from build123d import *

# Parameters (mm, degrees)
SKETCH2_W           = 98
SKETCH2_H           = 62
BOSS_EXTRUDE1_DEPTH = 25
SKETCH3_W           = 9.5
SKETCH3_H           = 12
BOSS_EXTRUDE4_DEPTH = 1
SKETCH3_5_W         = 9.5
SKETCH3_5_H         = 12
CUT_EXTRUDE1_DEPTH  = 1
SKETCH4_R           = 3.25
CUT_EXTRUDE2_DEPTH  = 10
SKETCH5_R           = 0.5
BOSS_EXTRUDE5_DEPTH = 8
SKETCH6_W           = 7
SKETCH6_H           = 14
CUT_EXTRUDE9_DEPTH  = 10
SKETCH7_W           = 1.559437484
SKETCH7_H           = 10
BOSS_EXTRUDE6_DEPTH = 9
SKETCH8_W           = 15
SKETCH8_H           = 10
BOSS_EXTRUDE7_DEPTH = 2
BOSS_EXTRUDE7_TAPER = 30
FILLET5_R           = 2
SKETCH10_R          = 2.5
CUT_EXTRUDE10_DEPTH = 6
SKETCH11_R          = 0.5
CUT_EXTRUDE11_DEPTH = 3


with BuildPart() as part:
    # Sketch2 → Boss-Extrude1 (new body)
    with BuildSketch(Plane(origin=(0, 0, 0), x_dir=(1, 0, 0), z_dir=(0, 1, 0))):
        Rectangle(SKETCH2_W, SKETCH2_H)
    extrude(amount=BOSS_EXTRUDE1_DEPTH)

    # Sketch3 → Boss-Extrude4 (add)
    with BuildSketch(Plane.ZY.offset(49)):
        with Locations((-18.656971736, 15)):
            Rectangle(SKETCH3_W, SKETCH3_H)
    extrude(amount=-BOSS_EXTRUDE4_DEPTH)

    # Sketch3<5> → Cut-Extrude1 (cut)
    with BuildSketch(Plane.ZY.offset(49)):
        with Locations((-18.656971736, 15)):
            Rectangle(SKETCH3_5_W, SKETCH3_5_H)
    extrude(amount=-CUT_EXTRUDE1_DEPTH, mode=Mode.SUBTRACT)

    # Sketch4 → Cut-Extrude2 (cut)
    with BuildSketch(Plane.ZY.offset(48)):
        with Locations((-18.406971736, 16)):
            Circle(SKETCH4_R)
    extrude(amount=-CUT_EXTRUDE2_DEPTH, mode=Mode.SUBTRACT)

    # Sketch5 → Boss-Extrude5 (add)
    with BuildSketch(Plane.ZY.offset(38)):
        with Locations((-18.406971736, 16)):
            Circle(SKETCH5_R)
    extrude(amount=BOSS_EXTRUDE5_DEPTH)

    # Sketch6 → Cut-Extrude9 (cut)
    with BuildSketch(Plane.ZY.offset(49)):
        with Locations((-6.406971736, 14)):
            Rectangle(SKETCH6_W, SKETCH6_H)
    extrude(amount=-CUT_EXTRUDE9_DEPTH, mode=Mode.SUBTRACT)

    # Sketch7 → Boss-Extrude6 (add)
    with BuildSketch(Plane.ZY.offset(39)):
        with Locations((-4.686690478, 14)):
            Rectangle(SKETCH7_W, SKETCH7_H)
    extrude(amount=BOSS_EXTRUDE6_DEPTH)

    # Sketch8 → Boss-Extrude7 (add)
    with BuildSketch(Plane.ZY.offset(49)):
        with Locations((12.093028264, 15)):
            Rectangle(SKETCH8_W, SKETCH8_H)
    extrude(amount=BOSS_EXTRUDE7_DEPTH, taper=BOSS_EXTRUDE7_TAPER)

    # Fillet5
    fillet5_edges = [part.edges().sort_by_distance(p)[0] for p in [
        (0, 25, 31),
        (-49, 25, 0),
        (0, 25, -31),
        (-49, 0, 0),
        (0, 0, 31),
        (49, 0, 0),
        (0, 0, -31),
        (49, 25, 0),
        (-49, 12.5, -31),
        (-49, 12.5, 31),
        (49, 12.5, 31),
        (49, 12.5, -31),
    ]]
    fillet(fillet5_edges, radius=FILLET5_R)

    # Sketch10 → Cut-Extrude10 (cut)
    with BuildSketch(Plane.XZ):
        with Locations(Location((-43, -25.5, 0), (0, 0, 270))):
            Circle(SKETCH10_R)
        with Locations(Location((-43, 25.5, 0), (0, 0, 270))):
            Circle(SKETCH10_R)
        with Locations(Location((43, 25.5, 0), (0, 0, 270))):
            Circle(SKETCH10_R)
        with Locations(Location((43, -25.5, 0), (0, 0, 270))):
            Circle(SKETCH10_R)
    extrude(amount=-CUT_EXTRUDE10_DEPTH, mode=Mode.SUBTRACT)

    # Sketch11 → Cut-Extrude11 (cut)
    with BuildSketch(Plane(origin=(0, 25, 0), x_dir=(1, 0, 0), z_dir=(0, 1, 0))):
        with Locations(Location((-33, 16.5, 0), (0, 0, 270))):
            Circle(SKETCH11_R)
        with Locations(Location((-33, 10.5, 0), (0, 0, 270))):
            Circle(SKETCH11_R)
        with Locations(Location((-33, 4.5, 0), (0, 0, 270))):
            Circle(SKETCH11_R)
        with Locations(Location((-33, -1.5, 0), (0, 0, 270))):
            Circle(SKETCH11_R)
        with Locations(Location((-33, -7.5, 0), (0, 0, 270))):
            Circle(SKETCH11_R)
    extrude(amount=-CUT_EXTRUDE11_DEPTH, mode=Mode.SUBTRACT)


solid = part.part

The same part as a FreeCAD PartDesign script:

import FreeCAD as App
import Part
import Sketcher
from FreeCAD import Vector


def edges_at(feature, points):
    """Names of the edges that pass closest to the given points."""
    edges = feature.Shape.Edges
    near = lambda p: min(range(len(edges)), key=lambda i: edges[i].distToShape(Part.Vertex(*p))[0])
    return sorted({f"Edge{near(p) + 1}" for p in points})


def add_polygon(sketch, points):
    """Adds a closed chain of lines whose ends are joined by coincident constraints."""
    first, n = sketch.GeometryCount, len(points)
    for a, b in zip(points, points[1:] + points[:1]):
        sketch.addGeometry(Part.LineSegment(App.Vector(*a, 0), App.Vector(*b, 0)), False)
    for i in range(n):
        sketch.addConstraint(Sketcher.Constraint("Coincident", first + i, 2, first + (i + 1) % n, 1))

doc = App.newDocument("Part")
body = doc.addObject("PartDesign::Body", "Body")

# Sketch on XZ plane
sketch1 = doc.addObject("Sketcher::SketchObject", "Sketch")
body.addObject(sketch1)
sketch1.AttachmentSupport = (doc.XZ_Plane, [""])
sketch1.MapMode = "FlatFace"
add_polygon(sketch1, [(-49, -31), (-49, 31), (49, 31), (49, -31)])  # lines 0-3
sketch1.addConstraint([
    Sketcher.Constraint("Vertical", 0),
    Sketcher.Constraint("Horizontal", 1),
    Sketcher.Constraint("Vertical", 2),
    Sketcher.Constraint("Horizontal", 3),
    Sketcher.Constraint("Symmetric", 0, 2, 2, 2, -1, 1),
    Sketcher.Constraint("DistanceX", 1, 1, 1, 2, 98.0),
    Sketcher.Constraint("DistanceY", 0, 1, 0, 2, 62.0),
])
pad1 = doc.addObject("PartDesign::Pad", "Pad")
body.addObject(pad1)
pad1.Profile = sketch1
pad1.Length = 25
pad1.Reversed = True

# Sketch on YZ plane
sketch2 = doc.addObject("Sketcher::SketchObject", "Sketch001")
body.addObject(sketch2)
sketch2.AttachmentSupport = (doc.YZ_Plane, [""])
sketch2.MapMode = "FlatFace"
sketch2.AttachmentOffset = App.Placement(Vector(0, 0, -49), App.Rotation())
add_polygon(sketch2, [(21, -23), (9, -23), (9, -14), (21, -14)])  # lines 0-3
sketch2.addConstraint([
    Sketcher.Constraint("Horizontal", 0),
    Sketcher.Constraint("Vertical", 1),
    Sketcher.Constraint("Horizontal", 2),
    Sketcher.Constraint("Vertical", 3),
    Sketcher.Constraint("DistanceX", 0, 2, 0, 1, 12.0),
    Sketcher.Constraint("DistanceY", 1, 1, 1, 2, 9.5),
    Sketcher.Constraint("DistanceX", -1, 1, 0, 2, 9.0),
    Sketcher.Constraint("DistanceY", 0, 2, -1, 1, 23.406972),
])
pad2 = doc.addObject("PartDesign::Pad", "Pad001")
body.addObject(pad2)
pad2.Profile = sketch2
pad2.Length = 1

# Sketch on YZ plane
sketch3 = doc.addObject("Sketcher::SketchObject", "Sketch002")
body.addObject(sketch3)
sketch3.AttachmentSupport = (doc.YZ_Plane, [""])
sketch3.MapMode = "FlatFace"
sketch3.AttachmentOffset = App.Placement(Vector(0, 0, -49), App.Rotation())
add_polygon(sketch3, [(21, -23), (9, -23), (9, -14), (21, -14)])  # lines 0-3
sketch3.addConstraint([
    Sketcher.Constraint("Horizontal", 0),
    Sketcher.Constraint("Vertical", 1),
    Sketcher.Constraint("Horizontal", 2),
    Sketcher.Constraint("Vertical", 3),
    Sketcher.Constraint("DistanceX", 0, 2, 0, 1, 12.0),
    Sketcher.Constraint("DistanceY", 1, 1, 1, 2, 9.5),
    Sketcher.Constraint("DistanceX", -1, 1, 0, 2, 9.0),
    Sketcher.Constraint("DistanceY", 0, 2, -1, 1, 23.406972),
])
pocket1 = doc.addObject("PartDesign::Pocket", "Pocket")
body.addObject(pocket1)
pocket1.Profile = sketch3
pocket1.Length = 1
pocket1.Reversed = True

# Sketch on YZ plane
sketch4 = doc.addObject("Sketcher::SketchObject", "Sketch003")
body.addObject(sketch4)
sketch4.AttachmentSupport = (doc.YZ_Plane, [""])
sketch4.MapMode = "FlatFace"
sketch4.AttachmentOffset = App.Placement(Vector(0, 0, -48), App.Rotation())
sketch4.addGeometry(Part.Circle(Vector(16, -18.4, 0), Vector(0, 0, 1), 3.2), False)
sketch4.addConstraint([
    Sketcher.Constraint("Diameter", 0, 6.5),
    Sketcher.Constraint("DistanceX", -1, 1, 0, 3, 16.0),
    Sketcher.Constraint("DistanceY", 0, 3, -1, 1, 18.406972),
])
pocket2 = doc.addObject("PartDesign::Pocket", "Pocket001")
body.addObject(pocket2)
pocket2.Profile = sketch4
pocket2.Length = 10
pocket2.Reversed = True

# Sketch on YZ plane
sketch5 = doc.addObject("Sketcher::SketchObject", "Sketch004")
body.addObject(sketch5)
sketch5.AttachmentSupport = (doc.YZ_Plane, [""])
sketch5.MapMode = "FlatFace"
sketch5.AttachmentOffset = App.Placement(Vector(0, 0, -38), App.Rotation())
sketch5.addGeometry(Part.Circle(Vector(16, -18.4, 0), Vector(0, 0, 1), 0.5), False)
sketch5.addConstraint([
    Sketcher.Constraint("Diameter", 0, 1.0),
    Sketcher.Constraint("DistanceX", -1, 1, 0, 3, 16.0),
    Sketcher.Constraint("DistanceY", 0, 3, -1, 1, 18.406972),
])
pad3 = doc.addObject("PartDesign::Pad", "Pad002")
body.addObject(pad3)
pad3.Profile = sketch5
pad3.Length = 8
pad3.Reversed = True

# Sketch on YZ plane
sketch6 = doc.addObject("Sketcher::SketchObject", "Sketch005")
body.addObject(sketch6)
sketch6.AttachmentSupport = (doc.YZ_Plane, [""])
sketch6.MapMode = "FlatFace"
sketch6.AttachmentOffset = App.Placement(Vector(0, 0, -49), App.Rotation())
add_polygon(sketch6, [(21, -10), (7, -10), (7, -3), (21, -3)])  # lines 0-3
sketch6.addConstraint([
    Sketcher.Constraint("Horizontal", 0),
    Sketcher.Constraint("Vertical", 1),
    Sketcher.Constraint("Horizontal", 2),
    Sketcher.Constraint("Vertical", 3),
    Sketcher.Constraint("DistanceX", 0, 2, 0, 1, 14.0),
    Sketcher.Constraint("DistanceY", 1, 1, 1, 2, 7.0),
    Sketcher.Constraint("DistanceX", -1, 1, 0, 2, 7.0),
    Sketcher.Constraint("DistanceY", 0, 2, -1, 1, 9.906972),
])
pocket3 = doc.addObject("PartDesign::Pocket", "Pocket002")
body.addObject(pocket3)
pocket3.Profile = sketch6
pocket3.Length = 10
pocket3.Reversed = True

# Sketch on YZ plane
sketch7 = doc.addObject("Sketcher::SketchObject", "Sketch006")
body.addObject(sketch7)
sketch7.AttachmentSupport = (doc.YZ_Plane, [""])
sketch7.MapMode = "FlatFace"
sketch7.AttachmentOffset = App.Placement(Vector(0, 0, -39), App.Rotation())
add_polygon(sketch7, [(19, -5.5), (9, -5.5), (9, -3.9), (19, -3.9)])  # lines 0-3
sketch7.addConstraint([
    Sketcher.Constraint("Horizontal", 0),
    Sketcher.Constraint("Vertical", 1),
    Sketcher.Constraint("Horizontal", 2),
    Sketcher.Constraint("Vertical", 3),
    Sketcher.Constraint("DistanceX", 0, 2, 0, 1, 10.0),
    Sketcher.Constraint("DistanceX", -1, 1, 0, 2, 9.0),
    Sketcher.Constraint("DistanceY", 1, 1, 1, 2, 1.559437),
    Sketcher.Constraint("DistanceY", 0, 2, -1, 1, 5.466409),
])
pad4 = doc.addObject("PartDesign::Pad", "Pad003")
body.addObject(pad4)
pad4.Profile = sketch7
pad4.Length = 9
pad4.Reversed = True

# Sketch on YZ plane
sketch8 = doc.addObject("Sketcher::SketchObject", "Sketch007")
body.addObject(sketch8)
sketch8.AttachmentSupport = (doc.YZ_Plane, [""])
sketch8.MapMode = "FlatFace"
sketch8.AttachmentOffset = App.Placement(Vector(0, 0, -49), App.Rotation())
add_polygon(sketch8, [(20, 5), (10, 5), (10, 20), (20, 20)])  # lines 0-3
sketch8.addConstraint([
    Sketcher.Constraint("Horizontal", 0),
    Sketcher.Constraint("Vertical", 1),
    Sketcher.Constraint("Horizontal", 2),
    Sketcher.Constraint("Vertical", 3),
    Sketcher.Constraint("DistanceX", 0, 2, 0, 1, 10.0),
    Sketcher.Constraint("DistanceY", 1, 1, 1, 2, 15.0),
    Sketcher.Constraint("DistanceX", -1, 1, 0, 2, 10.0),
    Sketcher.Constraint("DistanceY", -1, 1, 0, 2, 4.593028),
])
pad5 = doc.addObject("PartDesign::Pad", "Pad004")
body.addObject(pad5)
pad5.Profile = sketch8
pad5.Length = 2
pad5.Reversed = True
pad5.TaperAngle = -30
doc.recompute()

fillet = doc.addObject("PartDesign::Fillet", "Fillet")
body.addObject(fillet)
fillet.Base = (pad5, edges_at(pad5, [
    (0, 25, 31),
    (-49, 25, 0),
    (0, 25, -31),
    (-49, 0, 0),
    (0, 0, 31),
    (49, 0, 0),
    (0, 0, -31),
    (49, 25, 0),
    (-49, 12.5, -31),
    (-49, 12.5, 31),
    (49, 12.5, 31),
    (49, 12.5, -31),
]))
fillet.Radius = 2

# Sketch on XZ plane
sketch9 = doc.addObject("Sketcher::SketchObject", "Sketch008")
body.addObject(sketch9)
sketch9.AttachmentSupport = (doc.XZ_Plane, [""])
sketch9.MapMode = "FlatFace"
sketch9.addGeometry([
    Part.Circle(Vector(-43, -25.5, 0), Vector(0, 0, 1), 2.5),
    Part.Circle(Vector(-43, 25.5, 0), Vector(0, 0, 1), 2.5),
    Part.Circle(Vector(43, 25.5, 0), Vector(0, 0, 1), 2.5),
    Part.Circle(Vector(43, -25.5, 0), Vector(0, 0, 1), 2.5),
], False)
sketch9.addConstraint([
    Sketcher.Constraint("Equal", 0, 1),
    Sketcher.Constraint("Equal", 1, 2),
    Sketcher.Constraint("Equal", 2, 3),
    Sketcher.Constraint("Symmetric", 0, 3, 2, 3, -1, 1),
    Sketcher.Constraint("Symmetric", 1, 3, 3, 3, -1, 1),
    Sketcher.Constraint("Symmetric", 1, 3, 2, 3, -2),
    Sketcher.Constraint("Diameter", 0, 5.0),
    Sketcher.Constraint("DistanceX", 0, 3, -1, 1, 43.0),
    Sketcher.Constraint("DistanceY", 0, 3, 1, 3, 51.0),
])
pocket4 = doc.addObject("PartDesign::Pocket", "Pocket003")
body.addObject(pocket4)
pocket4.Profile = sketch9
pocket4.Length = 6

# Sketch on XZ plane
sketch10 = doc.addObject("Sketcher::SketchObject", "Sketch009")
body.addObject(sketch10)
sketch10.AttachmentSupport = (doc.XZ_Plane, [""])
sketch10.MapMode = "FlatFace"
sketch10.AttachmentOffset = App.Placement(Vector(0, 0, -25), App.Rotation())
sketch10.addGeometry([
    Part.Circle(Vector(-33, -16.5, 0), Vector(0, 0, 1), 0.5),  # 0
    Part.Circle(Vector(-33, -10.5, 0), Vector(0, 0, 1), 0.5),  # 1
    Part.Circle(Vector(-33, -4.5, 0), Vector(0, 0, 1), 0.5),  # 2
    Part.Circle(Vector(-33, 1.5, 0), Vector(0, 0, 1), 0.5),  # 3
    Part.Circle(Vector(-33, 7.5, 0), Vector(0, 0, 1), 0.5),  # 4
], False)
sketch10.addConstraint([
    Sketcher.Constraint("Equal", 0, 1),
    Sketcher.Constraint("Equal", 1, 2),
    Sketcher.Constraint("Equal", 2, 3),
    Sketcher.Constraint("Equal", 3, 4),
    Sketcher.Constraint("Vertical", 0, 3, 1, 3),
    Sketcher.Constraint("Vertical", 1, 3, 2, 3),
    Sketcher.Constraint("Vertical", 2, 3, 3, 3),
    Sketcher.Constraint("Vertical", 3, 3, 4, 3),
    Sketcher.Constraint("Diameter", 0, 1.0),
    Sketcher.Constraint("DistanceX", 0, 3, -1, 1, 33.0),
    Sketcher.Constraint("DistanceY", 0, 3, 1, 3, 6.0),
    Sketcher.Constraint("DistanceY", 1, 3, 2, 3, 6.0),
    Sketcher.Constraint("DistanceY", 2, 3, 3, 3, 6.0),
    Sketcher.Constraint("DistanceY", 3, 3, 4, 3, 6.0),
    Sketcher.Constraint("DistanceY", 0, 3, -1, 1, 16.5),
])
pocket5 = doc.addObject("PartDesign::Pocket", "Pocket004")
body.addObject(pocket5)
pocket5.Profile = sketch10
pocket5.Length = 3
pocket5.Reversed = True

doc.recompute()
